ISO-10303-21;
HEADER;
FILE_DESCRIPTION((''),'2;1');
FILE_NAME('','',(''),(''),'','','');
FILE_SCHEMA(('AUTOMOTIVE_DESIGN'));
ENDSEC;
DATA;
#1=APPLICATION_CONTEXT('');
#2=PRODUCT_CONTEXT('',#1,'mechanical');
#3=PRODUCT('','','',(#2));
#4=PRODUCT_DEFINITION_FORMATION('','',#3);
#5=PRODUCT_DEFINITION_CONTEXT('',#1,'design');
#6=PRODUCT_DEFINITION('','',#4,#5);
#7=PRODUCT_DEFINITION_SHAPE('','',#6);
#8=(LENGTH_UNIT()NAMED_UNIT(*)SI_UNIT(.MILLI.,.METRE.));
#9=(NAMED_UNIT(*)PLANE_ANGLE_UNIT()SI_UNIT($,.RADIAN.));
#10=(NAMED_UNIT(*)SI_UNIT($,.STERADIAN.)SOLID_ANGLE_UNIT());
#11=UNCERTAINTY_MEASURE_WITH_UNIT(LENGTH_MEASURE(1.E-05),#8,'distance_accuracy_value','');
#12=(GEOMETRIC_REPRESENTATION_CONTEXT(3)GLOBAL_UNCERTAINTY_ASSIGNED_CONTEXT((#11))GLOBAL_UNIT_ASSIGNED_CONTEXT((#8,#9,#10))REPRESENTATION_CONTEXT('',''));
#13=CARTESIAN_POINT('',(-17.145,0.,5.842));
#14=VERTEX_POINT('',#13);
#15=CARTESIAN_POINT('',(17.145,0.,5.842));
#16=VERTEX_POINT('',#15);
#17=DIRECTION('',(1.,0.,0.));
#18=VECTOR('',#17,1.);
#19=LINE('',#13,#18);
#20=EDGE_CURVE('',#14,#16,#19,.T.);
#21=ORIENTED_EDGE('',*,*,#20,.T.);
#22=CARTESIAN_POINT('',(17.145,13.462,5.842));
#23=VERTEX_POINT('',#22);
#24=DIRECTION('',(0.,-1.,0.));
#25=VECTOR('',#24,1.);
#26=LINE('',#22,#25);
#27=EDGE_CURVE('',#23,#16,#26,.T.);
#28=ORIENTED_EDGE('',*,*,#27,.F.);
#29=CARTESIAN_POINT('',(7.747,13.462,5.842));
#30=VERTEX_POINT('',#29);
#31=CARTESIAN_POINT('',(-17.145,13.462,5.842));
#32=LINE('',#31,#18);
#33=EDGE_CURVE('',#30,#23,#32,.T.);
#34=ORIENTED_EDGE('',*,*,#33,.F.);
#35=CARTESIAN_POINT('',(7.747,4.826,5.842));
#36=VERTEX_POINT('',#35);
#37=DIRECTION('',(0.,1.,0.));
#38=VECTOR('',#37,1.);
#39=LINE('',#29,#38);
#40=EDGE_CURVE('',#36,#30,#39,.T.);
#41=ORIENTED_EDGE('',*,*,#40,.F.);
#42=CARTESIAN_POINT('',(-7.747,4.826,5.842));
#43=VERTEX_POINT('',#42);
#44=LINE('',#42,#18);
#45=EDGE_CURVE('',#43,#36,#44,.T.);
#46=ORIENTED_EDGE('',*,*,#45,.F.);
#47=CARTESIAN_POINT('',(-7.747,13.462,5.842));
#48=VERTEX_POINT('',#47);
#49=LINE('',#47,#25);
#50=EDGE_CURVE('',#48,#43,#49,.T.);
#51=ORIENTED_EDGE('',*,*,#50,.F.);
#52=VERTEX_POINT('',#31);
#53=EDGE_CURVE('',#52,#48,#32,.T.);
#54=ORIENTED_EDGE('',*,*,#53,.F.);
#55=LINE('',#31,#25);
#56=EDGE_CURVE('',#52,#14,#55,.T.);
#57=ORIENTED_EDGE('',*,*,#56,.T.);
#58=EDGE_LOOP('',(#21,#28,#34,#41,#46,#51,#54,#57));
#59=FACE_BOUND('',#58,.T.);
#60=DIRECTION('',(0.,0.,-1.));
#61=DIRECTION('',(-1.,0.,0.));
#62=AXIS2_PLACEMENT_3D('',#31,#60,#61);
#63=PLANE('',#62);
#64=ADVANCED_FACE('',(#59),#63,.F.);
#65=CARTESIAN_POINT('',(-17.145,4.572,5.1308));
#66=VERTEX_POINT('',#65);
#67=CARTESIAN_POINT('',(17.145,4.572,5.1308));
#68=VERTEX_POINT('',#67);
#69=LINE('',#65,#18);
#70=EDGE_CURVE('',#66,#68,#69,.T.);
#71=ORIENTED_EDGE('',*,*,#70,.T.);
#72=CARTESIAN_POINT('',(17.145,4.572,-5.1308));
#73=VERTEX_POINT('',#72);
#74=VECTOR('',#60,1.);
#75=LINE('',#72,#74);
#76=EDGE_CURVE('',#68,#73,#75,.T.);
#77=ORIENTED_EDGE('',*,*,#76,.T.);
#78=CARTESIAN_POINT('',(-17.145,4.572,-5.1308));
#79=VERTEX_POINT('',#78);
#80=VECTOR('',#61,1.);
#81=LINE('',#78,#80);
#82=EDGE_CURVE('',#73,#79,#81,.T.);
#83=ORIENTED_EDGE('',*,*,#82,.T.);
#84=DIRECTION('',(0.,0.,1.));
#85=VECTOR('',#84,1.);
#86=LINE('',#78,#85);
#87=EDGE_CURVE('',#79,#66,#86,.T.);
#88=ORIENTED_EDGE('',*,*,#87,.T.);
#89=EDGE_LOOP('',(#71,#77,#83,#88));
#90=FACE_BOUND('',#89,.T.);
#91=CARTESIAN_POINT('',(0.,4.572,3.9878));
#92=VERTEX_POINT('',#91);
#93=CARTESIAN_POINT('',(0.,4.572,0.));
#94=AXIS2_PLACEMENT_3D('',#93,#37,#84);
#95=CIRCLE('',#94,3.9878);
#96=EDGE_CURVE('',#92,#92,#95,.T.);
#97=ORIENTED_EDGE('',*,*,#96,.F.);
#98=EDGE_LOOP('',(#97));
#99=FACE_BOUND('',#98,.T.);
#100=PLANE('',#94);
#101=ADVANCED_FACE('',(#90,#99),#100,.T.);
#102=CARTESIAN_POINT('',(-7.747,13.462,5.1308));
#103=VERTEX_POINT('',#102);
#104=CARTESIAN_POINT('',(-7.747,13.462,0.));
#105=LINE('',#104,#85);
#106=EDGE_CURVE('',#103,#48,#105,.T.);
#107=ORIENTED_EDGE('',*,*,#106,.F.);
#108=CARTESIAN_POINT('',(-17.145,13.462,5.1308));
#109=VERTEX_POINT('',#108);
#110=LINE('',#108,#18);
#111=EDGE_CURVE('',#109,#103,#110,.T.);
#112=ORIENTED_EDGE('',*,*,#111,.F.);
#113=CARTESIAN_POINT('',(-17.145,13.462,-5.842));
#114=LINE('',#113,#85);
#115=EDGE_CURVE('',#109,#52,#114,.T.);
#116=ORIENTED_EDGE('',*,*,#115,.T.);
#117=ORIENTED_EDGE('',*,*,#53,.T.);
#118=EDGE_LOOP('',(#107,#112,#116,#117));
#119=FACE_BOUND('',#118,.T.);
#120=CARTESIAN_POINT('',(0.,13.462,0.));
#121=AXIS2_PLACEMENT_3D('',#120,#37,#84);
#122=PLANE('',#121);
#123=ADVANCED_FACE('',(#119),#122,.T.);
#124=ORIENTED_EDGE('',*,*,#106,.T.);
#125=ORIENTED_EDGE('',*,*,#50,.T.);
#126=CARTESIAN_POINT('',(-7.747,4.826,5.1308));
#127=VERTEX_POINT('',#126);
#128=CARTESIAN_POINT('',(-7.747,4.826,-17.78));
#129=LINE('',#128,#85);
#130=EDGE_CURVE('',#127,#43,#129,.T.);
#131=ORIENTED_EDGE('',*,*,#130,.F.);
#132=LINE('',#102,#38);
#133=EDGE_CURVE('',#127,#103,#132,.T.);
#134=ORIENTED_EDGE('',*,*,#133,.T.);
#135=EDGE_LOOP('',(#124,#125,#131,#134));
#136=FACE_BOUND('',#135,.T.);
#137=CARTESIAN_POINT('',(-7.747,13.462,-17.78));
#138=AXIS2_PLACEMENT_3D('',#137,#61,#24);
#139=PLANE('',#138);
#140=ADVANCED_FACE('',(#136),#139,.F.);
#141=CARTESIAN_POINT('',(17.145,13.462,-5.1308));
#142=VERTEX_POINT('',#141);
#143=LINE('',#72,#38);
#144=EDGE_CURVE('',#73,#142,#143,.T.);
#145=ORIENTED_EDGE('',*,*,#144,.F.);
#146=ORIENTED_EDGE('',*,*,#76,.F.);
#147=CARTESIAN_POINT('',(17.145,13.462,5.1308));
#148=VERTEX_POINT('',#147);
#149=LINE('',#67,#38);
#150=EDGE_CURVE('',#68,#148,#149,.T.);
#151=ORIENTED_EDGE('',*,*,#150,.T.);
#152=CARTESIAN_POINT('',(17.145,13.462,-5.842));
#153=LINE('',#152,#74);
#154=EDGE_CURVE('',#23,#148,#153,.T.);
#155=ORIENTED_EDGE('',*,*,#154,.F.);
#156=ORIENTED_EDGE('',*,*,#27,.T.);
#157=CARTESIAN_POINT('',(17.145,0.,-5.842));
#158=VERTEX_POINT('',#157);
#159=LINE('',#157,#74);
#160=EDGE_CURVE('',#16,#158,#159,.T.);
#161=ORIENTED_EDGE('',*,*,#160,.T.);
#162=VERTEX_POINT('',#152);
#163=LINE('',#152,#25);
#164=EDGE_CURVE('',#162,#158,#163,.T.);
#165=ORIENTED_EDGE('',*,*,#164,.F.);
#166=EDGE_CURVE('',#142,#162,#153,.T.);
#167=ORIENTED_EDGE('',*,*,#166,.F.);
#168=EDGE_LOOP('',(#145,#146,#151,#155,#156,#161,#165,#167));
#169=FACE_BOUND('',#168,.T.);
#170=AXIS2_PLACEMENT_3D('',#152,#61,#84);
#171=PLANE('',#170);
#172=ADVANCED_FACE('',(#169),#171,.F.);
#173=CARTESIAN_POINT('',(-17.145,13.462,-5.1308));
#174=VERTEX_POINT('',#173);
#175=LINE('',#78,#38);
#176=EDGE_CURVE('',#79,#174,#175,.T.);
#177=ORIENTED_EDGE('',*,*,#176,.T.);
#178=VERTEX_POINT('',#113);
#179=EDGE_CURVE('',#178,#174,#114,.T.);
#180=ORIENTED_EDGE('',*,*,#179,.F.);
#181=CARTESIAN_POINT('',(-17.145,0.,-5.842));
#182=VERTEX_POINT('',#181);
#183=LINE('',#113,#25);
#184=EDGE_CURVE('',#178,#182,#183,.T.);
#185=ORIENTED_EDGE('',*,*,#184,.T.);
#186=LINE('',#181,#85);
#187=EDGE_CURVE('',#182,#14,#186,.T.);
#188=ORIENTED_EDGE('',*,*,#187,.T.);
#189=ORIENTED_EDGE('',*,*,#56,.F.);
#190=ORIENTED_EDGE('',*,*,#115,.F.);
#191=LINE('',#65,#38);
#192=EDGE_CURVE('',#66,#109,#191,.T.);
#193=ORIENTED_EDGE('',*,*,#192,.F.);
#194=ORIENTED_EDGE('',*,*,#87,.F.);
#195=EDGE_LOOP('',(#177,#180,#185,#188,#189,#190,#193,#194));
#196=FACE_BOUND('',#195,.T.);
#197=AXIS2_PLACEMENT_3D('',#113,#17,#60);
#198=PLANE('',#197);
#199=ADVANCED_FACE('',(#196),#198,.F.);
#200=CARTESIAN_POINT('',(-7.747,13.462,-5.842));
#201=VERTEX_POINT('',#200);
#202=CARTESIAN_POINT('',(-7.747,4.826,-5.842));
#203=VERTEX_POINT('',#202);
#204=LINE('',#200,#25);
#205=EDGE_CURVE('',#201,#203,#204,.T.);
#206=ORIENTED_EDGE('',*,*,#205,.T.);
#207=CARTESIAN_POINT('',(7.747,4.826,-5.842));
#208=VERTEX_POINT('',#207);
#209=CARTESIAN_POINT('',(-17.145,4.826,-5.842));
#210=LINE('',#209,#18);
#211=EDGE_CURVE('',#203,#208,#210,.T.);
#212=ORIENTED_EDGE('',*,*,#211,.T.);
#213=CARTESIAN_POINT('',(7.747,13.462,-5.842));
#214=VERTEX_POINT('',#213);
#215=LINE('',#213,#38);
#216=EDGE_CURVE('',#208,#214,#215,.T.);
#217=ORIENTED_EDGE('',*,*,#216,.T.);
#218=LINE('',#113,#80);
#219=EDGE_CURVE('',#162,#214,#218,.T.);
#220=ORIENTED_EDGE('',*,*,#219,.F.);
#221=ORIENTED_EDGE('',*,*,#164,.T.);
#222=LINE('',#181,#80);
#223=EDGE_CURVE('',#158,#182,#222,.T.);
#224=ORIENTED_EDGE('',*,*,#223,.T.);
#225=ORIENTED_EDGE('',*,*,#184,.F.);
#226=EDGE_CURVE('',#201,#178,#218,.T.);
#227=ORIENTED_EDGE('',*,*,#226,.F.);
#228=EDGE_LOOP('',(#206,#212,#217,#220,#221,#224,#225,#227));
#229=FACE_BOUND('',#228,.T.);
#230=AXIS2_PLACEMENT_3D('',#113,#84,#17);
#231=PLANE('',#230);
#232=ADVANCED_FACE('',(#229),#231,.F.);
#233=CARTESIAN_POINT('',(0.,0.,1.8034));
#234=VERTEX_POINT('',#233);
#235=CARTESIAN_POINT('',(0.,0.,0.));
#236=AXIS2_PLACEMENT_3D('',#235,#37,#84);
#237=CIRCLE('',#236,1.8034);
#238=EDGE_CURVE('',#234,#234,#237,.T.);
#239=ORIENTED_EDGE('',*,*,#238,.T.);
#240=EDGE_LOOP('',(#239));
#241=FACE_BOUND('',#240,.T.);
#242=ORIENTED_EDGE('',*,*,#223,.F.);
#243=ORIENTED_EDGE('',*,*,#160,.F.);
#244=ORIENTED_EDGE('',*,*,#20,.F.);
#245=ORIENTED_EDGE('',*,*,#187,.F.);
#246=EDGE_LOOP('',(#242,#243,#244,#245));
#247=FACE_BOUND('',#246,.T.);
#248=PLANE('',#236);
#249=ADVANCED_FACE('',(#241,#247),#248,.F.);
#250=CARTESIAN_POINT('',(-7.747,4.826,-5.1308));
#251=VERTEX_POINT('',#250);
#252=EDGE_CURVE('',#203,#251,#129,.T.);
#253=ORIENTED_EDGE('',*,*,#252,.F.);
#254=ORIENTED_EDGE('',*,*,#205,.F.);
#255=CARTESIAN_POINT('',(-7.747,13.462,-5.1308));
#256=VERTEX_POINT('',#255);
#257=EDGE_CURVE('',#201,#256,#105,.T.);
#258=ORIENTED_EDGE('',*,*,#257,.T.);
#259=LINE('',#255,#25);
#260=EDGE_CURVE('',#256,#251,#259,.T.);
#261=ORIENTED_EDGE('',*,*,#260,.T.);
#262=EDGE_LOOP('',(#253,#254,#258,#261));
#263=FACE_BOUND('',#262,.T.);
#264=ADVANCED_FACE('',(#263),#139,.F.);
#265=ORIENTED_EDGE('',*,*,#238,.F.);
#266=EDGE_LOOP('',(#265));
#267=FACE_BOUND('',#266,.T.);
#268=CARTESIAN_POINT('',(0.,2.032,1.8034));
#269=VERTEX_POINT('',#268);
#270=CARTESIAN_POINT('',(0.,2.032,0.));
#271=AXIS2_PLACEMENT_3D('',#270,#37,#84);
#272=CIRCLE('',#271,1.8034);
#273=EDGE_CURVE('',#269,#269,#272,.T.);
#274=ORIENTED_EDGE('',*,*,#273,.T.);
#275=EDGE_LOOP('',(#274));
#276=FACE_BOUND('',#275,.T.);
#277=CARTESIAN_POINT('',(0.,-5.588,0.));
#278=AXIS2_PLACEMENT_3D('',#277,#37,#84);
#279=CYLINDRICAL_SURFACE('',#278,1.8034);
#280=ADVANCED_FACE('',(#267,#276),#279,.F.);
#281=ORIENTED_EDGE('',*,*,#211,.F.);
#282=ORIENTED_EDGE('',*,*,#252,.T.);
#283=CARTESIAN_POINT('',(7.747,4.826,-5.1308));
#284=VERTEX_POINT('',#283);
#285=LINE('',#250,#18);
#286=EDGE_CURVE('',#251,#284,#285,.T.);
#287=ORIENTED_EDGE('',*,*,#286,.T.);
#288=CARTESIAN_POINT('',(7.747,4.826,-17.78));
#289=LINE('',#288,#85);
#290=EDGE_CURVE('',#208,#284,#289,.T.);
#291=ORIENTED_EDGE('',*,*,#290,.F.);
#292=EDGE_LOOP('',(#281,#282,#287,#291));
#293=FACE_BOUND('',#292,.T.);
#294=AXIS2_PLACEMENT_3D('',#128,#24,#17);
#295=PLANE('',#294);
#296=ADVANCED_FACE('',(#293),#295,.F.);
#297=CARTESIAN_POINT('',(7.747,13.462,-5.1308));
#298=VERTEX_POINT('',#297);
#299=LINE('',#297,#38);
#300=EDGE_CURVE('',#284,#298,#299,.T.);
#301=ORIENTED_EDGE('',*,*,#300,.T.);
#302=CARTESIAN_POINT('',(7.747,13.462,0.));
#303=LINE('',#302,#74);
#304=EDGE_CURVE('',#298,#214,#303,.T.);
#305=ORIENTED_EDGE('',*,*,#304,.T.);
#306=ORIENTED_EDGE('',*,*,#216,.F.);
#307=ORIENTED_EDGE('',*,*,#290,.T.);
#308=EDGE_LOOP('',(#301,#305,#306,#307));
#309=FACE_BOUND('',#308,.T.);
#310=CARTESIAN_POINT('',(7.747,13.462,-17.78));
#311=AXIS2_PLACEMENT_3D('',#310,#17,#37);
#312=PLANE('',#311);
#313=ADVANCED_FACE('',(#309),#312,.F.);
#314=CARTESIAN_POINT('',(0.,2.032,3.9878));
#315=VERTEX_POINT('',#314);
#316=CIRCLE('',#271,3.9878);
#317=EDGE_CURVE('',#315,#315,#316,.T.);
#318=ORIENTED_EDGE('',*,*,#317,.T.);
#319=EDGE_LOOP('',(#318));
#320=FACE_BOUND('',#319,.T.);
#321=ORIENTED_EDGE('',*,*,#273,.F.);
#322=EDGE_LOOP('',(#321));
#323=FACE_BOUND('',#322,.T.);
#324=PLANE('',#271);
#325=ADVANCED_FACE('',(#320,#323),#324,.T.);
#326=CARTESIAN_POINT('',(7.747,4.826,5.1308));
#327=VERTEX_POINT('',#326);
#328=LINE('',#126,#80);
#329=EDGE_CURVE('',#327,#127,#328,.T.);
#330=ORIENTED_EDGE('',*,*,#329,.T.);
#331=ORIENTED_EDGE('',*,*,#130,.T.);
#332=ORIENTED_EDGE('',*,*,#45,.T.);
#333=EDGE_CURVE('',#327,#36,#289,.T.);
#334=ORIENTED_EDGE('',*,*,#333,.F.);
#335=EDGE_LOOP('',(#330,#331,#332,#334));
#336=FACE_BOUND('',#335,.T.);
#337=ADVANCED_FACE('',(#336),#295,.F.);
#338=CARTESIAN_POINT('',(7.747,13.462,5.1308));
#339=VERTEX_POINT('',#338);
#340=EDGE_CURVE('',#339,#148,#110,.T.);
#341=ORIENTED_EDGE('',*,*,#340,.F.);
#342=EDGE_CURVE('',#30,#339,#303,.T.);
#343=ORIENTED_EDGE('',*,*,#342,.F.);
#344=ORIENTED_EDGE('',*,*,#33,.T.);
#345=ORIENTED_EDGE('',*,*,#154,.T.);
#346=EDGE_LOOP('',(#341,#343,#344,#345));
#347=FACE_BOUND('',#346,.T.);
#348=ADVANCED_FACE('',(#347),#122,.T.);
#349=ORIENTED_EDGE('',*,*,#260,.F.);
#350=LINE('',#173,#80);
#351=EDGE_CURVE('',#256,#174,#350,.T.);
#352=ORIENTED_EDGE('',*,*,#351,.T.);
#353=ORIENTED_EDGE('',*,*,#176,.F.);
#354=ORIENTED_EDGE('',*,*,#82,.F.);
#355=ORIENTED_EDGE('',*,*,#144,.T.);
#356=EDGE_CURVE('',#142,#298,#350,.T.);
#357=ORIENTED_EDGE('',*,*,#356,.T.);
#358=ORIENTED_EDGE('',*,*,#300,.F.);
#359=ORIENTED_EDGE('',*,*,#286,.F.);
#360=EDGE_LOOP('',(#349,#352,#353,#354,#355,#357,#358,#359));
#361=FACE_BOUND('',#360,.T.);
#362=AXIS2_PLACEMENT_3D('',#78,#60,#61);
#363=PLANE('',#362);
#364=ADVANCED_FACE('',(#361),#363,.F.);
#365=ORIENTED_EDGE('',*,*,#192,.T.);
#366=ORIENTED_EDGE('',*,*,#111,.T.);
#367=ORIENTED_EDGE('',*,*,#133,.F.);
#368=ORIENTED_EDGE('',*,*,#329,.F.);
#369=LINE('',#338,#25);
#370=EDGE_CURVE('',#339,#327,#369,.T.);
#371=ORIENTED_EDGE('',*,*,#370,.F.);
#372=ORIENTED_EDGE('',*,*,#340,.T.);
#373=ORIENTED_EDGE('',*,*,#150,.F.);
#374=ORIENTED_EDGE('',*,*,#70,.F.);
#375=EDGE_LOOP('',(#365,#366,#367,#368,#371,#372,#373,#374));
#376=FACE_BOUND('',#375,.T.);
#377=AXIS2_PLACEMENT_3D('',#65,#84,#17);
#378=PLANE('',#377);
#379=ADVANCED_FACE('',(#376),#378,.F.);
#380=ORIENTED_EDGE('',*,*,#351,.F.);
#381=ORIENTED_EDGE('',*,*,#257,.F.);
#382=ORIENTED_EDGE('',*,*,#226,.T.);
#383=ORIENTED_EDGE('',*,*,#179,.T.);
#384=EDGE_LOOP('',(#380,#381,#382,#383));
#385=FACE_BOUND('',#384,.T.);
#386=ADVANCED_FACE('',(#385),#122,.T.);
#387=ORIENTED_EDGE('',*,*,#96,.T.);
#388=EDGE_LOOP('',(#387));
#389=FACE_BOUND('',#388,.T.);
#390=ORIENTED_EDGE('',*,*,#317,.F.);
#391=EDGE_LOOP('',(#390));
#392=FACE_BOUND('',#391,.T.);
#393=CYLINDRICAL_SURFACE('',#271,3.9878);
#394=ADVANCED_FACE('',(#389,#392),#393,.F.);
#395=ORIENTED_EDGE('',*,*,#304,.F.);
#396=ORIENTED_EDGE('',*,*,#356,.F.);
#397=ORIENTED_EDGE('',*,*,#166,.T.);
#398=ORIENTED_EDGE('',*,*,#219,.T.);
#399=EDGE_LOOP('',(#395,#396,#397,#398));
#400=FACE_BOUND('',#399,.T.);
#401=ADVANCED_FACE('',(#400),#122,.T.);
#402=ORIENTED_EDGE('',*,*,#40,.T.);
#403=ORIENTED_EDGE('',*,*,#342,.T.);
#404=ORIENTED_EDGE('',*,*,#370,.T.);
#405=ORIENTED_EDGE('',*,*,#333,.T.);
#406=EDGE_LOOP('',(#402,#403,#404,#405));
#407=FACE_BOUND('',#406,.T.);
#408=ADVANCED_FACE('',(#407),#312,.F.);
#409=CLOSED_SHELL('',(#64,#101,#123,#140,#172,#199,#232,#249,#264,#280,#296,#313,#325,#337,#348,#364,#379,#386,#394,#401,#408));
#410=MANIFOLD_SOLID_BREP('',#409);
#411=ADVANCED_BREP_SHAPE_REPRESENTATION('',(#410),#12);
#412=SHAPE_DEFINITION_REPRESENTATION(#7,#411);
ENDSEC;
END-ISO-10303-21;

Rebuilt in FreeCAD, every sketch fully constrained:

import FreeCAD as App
import Part
import Sketcher
from FreeCAD import Vector
Q = App.Units.Quantity


def add_polygon(sketch, points):
    """Adds a closed chain of lines whose ends are joined by coincident constraints."""
    first, n = sketch.GeometryCount, len(points)
    for a, b in zip(points, points[1:] + points[:1]):
        sketch.addGeometry(Part.LineSegment(App.Vector(*a, 0), App.Vector(*b, 0)), False)
    for i in range(n):
        sketch.addConstraint(Sketcher.Constraint("Coincident", first + i, 2, first + (i + 1) % n, 1))

doc = App.newDocument("Part")
body = doc.addObject("PartDesign::Body", "Body")

# Sketch on XZ plane
sketch1 = body.newObject("Sketcher::SketchObject", "Sketch")
sketch1.AttachmentSupport = (doc.getObject("XZ_Plane"), [""])
sketch1.MapMode = "FlatFace"
add_polygon(sketch1, [(-17, -6), (-17, 6), (17, 6), (17, -6)])  # lines 0-3
sketch1.addConstraint([
    Sketcher.Constraint("Vertical", 0),
    Sketcher.Constraint("Horizontal", 1),
    Sketcher.Constraint("Vertical", 2),
    Sketcher.Constraint("Horizontal", 3),
    Sketcher.Constraint("Symmetric", 0, 2, 2, 2, -1, 1),
    Sketcher.Constraint("DistanceX", 1, 1, 1, 2, Q("1.35 in")),
    Sketcher.Constraint("DistanceY", 0, 1, 0, 2, Q("0.46 in")),
])
pad1 = body.newObject("PartDesign::Pad", "Pad")
pad1.Profile = sketch1
pad1.Length = Q("0.53 in")
pad1.Reversed = True

# Sketch on XY plane
sketch2 = body.newObject("Sketcher::SketchObject", "Sketch001")
sketch2.AttachmentSupport = (doc.getObject("XY_Plane"), [""])
sketch2.MapMode = "FlatFace"
sketch2.AttachmentOffset = App.Placement(Vector(0, 0, 0.23 * 25.4), App.Rotation())
add_polygon(sketch2, [(-8, 13), (-8, 5), (8, 5), (8, 13)])  # lines 0-3
sketch2.addConstraint([
    Sketcher.Constraint("Vertical", 0),
    Sketcher.Constraint("Horizontal", 1),
    Sketcher.Constraint("Vertical", 2),
    Sketcher.Constraint("Horizontal", 3),
    Sketcher.Constraint("DistanceX", 1, 1, 1, 2, Q("0.61 in")),
    Sketcher.Constraint("DistanceY", 0, 2, 0, 1, Q("0.34 in")),
    Sketcher.Constraint("DistanceY", -1, 1, 0, 2, Q("0.19 in")),
    Sketcher.Constraint("DistanceX", 0, 2, -1, 1, Q("0.305 in")),
])
pocket1 = body.newObject("PartDesign::Pocket", "Pocket")
pocket1.Profile = sketch2
pocket1.Length = Q("0.93 in")

# Sketch on XZ plane
sketch3 = body.newObject("Sketcher::SketchObject", "Sketch002")
sketch3.AttachmentSupport = (doc.getObject("XZ_Plane"), [""])
sketch3.MapMode = "FlatFace"
sketch3.AttachmentOffset = App.Placement(Vector(0, 0, -0.53 * 25.4), App.Rotation())
add_polygon(sketch3, [(-17, -5), (-17, 5), (17, 5), (17, -5)])  # lines 0-3
sketch3.addConstraint([
    Sketcher.Constraint("Vertical", 0),
    Sketcher.Constraint("Horizontal", 1),
    Sketcher.Constraint("Vertical", 2),
    Sketcher.Constraint("Horizontal", 3),
    Sketcher.Constraint("Symmetric", 0, 2, 2, 2, -1, 1),
    Sketcher.Constraint("DistanceX", 1, 1, 1, 2, Q("1.35 in")),
    Sketcher.Constraint("DistanceY", 0, 1, 0, 2, Q("0.404 in")),
])
pocket2 = body.newObject("PartDesign::Pocket", "Pocket001")
pocket2.Profile = sketch3
pocket2.Length = Q("0.35 in")
pocket2.Reversed = True

# Sketch on XZ plane
sketch4 = body.newObject("Sketcher::SketchObject", "Sketch003")
sketch4.AttachmentSupport = (doc.getObject("XZ_Plane"), [""])
sketch4.MapMode = "FlatFace"
sketch4.AttachmentOffset = App.Placement(Vector(0, 0, -0.18 * 25.4), App.Rotation())
sketch4.addGeometry(Part.Circle(Vector(0, 0, 0), Vector(0, 0, 1), 4), False)
sketch4.addConstraint([
    Sketcher.Constraint("Coincident", 0, 3, -1, 1),
    Sketcher.Constraint("Diameter", 0, Q("0.314 in")),
])
pocket3 = body.newObject("PartDesign::Pocket", "Pocket002")
pocket3.Profile = sketch4
pocket3.Length = Q("0.1 in")
pocket3.Reversed = True

# Sketch on XZ plane
sketch5 = body.newObject("Sketcher::SketchObject", "Sketch004")
sketch5.AttachmentSupport = (doc.getObject("XZ_Plane"), [""])
sketch5.MapMode = "FlatFace"
sketch5.AttachmentOffset = App.Placement(Vector(0, 0, -0.08 * 25.4), App.Rotation())
sketch5.addGeometry(Part.Circle(Vector(0, 0, 0), Vector(0, 0, 1), 1.8), False)
sketch5.addConstraint([
    Sketcher.Constraint("Coincident", 0, 3, -1, 1),
    Sketcher.Constraint("Diameter", 0, Q("0.142 in")),
])
pocket4 = body.newObject("PartDesign::Pocket", "Pocket003")
pocket4.Profile = sketch5
pocket4.Length = Q("0.3 in")
pocket4.Reversed = True

doc.recompute()
